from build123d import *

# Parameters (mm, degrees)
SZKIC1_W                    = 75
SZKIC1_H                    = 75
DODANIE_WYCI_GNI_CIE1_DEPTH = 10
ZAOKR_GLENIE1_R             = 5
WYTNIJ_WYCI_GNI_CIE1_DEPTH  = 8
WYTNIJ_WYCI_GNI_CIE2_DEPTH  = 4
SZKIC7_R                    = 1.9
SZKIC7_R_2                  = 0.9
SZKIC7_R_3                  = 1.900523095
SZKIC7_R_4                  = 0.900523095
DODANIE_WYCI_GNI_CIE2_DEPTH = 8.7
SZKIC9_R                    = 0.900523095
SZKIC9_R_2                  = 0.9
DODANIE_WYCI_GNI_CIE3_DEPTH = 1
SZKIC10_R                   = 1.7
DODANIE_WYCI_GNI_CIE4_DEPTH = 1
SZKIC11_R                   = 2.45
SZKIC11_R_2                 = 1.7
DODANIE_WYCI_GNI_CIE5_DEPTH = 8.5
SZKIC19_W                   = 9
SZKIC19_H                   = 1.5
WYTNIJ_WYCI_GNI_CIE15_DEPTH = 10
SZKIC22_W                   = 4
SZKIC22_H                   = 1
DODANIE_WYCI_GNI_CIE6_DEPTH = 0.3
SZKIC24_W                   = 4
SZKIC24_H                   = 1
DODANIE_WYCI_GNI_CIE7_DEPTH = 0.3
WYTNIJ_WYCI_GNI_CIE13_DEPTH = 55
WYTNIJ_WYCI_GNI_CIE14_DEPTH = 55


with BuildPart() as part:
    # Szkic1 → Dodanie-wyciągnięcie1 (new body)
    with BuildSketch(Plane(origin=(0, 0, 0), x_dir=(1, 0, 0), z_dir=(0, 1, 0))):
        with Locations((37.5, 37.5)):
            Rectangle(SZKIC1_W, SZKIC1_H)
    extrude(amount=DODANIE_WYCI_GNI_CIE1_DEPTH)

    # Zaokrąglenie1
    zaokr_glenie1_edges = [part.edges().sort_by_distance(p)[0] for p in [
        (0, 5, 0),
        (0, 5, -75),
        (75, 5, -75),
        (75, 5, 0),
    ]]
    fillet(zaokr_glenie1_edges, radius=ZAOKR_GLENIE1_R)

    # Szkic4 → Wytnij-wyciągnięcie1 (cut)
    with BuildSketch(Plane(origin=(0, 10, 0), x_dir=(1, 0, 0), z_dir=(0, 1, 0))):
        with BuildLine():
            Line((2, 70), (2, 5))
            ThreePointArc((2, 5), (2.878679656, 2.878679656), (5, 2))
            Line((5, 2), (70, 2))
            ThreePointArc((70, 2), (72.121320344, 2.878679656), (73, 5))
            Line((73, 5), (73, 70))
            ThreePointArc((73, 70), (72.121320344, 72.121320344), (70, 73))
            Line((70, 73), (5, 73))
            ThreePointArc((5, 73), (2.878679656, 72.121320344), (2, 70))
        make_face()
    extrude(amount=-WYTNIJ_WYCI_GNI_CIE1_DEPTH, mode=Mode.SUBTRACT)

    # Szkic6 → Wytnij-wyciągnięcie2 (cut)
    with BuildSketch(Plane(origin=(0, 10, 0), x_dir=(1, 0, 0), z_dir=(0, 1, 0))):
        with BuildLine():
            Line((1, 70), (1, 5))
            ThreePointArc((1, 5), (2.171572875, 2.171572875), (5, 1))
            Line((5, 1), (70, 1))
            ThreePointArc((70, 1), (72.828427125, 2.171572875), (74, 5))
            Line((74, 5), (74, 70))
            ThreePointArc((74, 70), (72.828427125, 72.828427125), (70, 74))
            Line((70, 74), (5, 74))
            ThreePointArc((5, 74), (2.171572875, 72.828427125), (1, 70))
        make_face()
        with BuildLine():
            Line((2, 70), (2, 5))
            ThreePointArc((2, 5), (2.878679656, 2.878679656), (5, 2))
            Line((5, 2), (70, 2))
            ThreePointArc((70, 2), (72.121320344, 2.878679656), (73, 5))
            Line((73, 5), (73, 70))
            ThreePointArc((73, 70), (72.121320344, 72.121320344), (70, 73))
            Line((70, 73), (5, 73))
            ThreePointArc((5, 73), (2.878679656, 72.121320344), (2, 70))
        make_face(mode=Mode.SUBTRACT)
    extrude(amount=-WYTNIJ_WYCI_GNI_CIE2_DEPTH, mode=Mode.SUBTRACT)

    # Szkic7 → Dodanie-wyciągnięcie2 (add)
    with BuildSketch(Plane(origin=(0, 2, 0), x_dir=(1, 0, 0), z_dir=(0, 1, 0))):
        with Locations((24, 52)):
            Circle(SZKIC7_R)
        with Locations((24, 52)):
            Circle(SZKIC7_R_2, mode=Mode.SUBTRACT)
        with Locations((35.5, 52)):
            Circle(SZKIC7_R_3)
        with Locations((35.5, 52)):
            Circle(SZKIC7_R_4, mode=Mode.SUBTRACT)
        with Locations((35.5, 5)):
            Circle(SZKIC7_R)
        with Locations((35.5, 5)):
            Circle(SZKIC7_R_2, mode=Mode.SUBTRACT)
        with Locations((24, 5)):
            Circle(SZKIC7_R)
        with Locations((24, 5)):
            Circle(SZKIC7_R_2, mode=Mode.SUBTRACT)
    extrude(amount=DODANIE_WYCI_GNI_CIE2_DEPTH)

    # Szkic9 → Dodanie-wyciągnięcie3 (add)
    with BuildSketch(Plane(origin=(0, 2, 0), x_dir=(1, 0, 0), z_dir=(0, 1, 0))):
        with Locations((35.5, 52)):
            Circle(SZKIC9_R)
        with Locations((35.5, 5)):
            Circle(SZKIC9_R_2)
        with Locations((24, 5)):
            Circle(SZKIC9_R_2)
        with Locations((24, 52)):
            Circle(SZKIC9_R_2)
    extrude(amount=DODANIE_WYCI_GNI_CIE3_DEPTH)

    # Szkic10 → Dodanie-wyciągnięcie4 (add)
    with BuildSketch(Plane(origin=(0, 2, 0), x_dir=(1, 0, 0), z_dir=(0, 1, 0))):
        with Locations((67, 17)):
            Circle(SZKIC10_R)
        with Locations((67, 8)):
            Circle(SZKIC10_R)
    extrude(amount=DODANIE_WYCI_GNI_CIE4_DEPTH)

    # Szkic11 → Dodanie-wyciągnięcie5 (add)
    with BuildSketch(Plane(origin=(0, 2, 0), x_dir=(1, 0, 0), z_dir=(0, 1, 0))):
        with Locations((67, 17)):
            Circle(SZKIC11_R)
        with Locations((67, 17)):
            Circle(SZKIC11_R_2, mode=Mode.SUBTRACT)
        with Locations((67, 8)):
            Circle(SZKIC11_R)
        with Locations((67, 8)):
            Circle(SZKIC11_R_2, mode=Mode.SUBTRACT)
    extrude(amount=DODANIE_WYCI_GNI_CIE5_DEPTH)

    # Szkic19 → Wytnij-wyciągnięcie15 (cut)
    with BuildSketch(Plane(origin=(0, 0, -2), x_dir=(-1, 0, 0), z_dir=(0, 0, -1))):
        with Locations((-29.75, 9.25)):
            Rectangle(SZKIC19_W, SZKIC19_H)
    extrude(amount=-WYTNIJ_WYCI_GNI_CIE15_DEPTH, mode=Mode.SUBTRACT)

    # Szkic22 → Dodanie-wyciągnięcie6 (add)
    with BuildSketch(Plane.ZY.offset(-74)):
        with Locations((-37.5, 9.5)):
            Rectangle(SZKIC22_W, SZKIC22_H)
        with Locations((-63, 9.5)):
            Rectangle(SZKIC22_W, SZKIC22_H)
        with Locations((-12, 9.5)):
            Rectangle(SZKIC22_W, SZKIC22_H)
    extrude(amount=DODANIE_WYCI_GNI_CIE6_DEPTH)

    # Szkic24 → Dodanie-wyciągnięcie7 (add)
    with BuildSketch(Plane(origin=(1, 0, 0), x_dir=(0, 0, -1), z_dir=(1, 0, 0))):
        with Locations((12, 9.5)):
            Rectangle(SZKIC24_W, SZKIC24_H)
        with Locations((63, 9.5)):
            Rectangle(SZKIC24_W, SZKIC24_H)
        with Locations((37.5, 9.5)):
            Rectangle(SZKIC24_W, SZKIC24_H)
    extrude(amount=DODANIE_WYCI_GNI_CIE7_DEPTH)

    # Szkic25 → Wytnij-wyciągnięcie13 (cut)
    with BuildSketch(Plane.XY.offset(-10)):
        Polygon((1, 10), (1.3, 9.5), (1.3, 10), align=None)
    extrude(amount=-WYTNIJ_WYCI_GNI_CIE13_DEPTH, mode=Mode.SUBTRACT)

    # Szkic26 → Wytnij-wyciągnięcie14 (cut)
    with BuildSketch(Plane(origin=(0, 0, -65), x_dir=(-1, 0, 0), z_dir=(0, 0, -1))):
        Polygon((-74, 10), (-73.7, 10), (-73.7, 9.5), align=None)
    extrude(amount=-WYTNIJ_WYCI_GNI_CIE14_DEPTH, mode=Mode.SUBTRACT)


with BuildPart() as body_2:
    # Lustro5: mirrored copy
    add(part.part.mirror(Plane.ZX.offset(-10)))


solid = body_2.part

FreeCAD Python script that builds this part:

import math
import FreeCAD as App
import Part
import Sketcher

V = App.Vector
Q = App.Units.Quantity


def edges_at(feature, points):
    """Names of the edges that pass closest to the given points."""
    edges = feature.Shape.Edges
    near = lambda p: min(range(len(edges)), key=lambda i: edges[i].distToShape(Part.Vertex(*p))[0])
    return sorted({f"Edge{near(p) + 1}" for p in points})

doc = App.newDocument("Part")
body = doc.addObject("PartDesign::Body", "Body")

# Sketch on XZ plane
sketch1 = body.newObject("Sketcher::SketchObject", "Sketch")
sketch1.AttachmentSupport = (doc.getObject("XZ_Plane"), [""])
sketch1.MapMode = "FlatFace"
sketch1.addGeometry([
    Part.LineSegment(V(0, -75, 0), V(0, 0, 0)),
    Part.LineSegment(V(0, 0, 0), V(75, 0, 0)),
    Part.LineSegment(V(75, 0, 0), V(75, -75, 0)),
    Part.LineSegment(V(75, -75, 0), V(0, -75, 0)),
], False)
sketch1.addConstraint([
    Sketcher.Constraint("Coincident", 0, 2, 1, 1),
    Sketcher.Constraint("Coincident", 1, 2, 2, 1),
    Sketcher.Constraint("Coincident", 2, 2, 3, 1),
    Sketcher.Constraint("Coincident", 3, 2, 0, 1),
    Sketcher.Constraint("Vertical", 0),
    Sketcher.Constraint("Horizontal", 1),
    Sketcher.Constraint("Vertical", 2),
    Sketcher.Constraint("Horizontal", 3),
    Sketcher.Constraint("Coincident", 0, 2, -1, 1),
    Sketcher.Constraint("Equal", 3, 0),
    Sketcher.Constraint("DistanceX", 1, 1, 1, 2, Q("75 mm")),
])
pad1 = body.newObject("PartDesign::Pad", "Pad")
pad1.Profile = sketch1
pad1.Length = 10
pad1.Reversed = True
doc.recompute()

fillet = body.newObject("PartDesign::Fillet", "Fillet")
fillet.Base = (pad1, edges_at(pad1, [
    (0, 5, 0),
    (0, 5, -75),
    (75, 5, -75),
    (75, 5, 0),
]))
fillet.Radius = 5

# Sketch on XZ plane
sketch2 = body.newObject("Sketcher::SketchObject", "Sketch001")
sketch2.AttachmentSupport = (doc.getObject("XZ_Plane"), [""])
sketch2.MapMode = "FlatFace"
sketch2.AttachmentOffset = App.Placement(V(0, 0, -10), App.Rotation())
sketch2.addGeometry([
    Part.LineSegment(V(2, -70, 0), V(2, -5, 0)),  # 0
    Part.ArcOfCircle(Part.Circle(V(5, -5, 0), V(0, 0, 1), 3), math.radians(90), math.radians(180)),  # 1
    Part.LineSegment(V(5, -2, 0), V(70, -2, 0)),  # 2
    Part.ArcOfCircle(Part.Circle(V(70, -5, 0), V(0, 0, 1), 3), math.radians(0), math.radians(90)),  # 3
    Part.LineSegment(V(73, -5, 0), V(73, -70, 0)),  # 4
    Part.ArcOfCircle(Part.Circle(V(70, -70, 0), V(0, 0, 1), 3), math.radians(-90), math.radians(0)),  # 5
    Part.LineSegment(V(70, -73, 0), V(5, -73, 0)),  # 6
    Part.ArcOfCircle(Part.Circle(V(5, -70, 0), V(0, 0, 1), 3), math.radians(180), math.radians(270)),  # 7
], False)
sketch2.addConstraint([
    Sketcher.Constraint("Tangent", 0, 2, 1, 2),
    Sketcher.Constraint("Tangent", 1, 1, 2, 1),
    Sketcher.Constraint("Tangent", 2, 2, 3, 2),
    Sketcher.Constraint("Tangent", 3, 1, 4, 1),
    Sketcher.Constraint("Tangent", 4, 2, 5, 2),
    Sketcher.Constraint("Tangent", 5, 1, 6, 1),
    Sketcher.Constraint("Tangent", 6, 2, 7, 2),
    Sketcher.Constraint("Tangent", 7, 1, 0, 1),
    Sketcher.Constraint("Vertical", 0),
    Sketcher.Constraint("Horizontal", 2),
    Sketcher.Constraint("Vertical", 4),
    Sketcher.Constraint("Horizontal", 6),
    Sketcher.Constraint("Equal", 1, 3),
    Sketcher.Constraint("Equal", 3, 5),
    Sketcher.Constraint("Equal", 5, 7),
    Sketcher.Constraint("Equal", 6, 0),
    Sketcher.Constraint("Radius", 1, Q("3 mm")),
    Sketcher.Constraint("DistanceX", 2, 1, 2, 2, Q("65 mm")),
    Sketcher.Constraint("DistanceX", -1, 1, 1, 3, Q("5 mm")),
    Sketcher.Constraint("DistanceY", 1, 3, -1, 1, Q("5 mm")),
])
pocket1 = body.newObject("PartDesign::Pocket", "Pocket")
pocket1.Profile = sketch2
pocket1.Length = 8
pocket1.Reversed = True

# Sketch on XZ plane
sketch3 = body.newObject("Sketcher::SketchObject", "Sketch002")
sketch3.AttachmentSupport = (doc.getObject("XZ_Plane"), [""])
sketch3.MapMode = "FlatFace"
sketch3.AttachmentOffset = App.Placement(V(0, 0, -10), App.Rotation())
sketch3.addGeometry([
    Part.LineSegment(V(1, -70, 0), V(1, -5, 0)),  # 0
    Part.ArcOfCircle(Part.Circle(V(5, -5, 0), V(0, 0, 1), 4), math.radians(90), math.radians(180)),  # 1
    Part.LineSegment(V(5, -1, 0), V(70, -1, 0)),  # 2
    Part.ArcOfCircle(Part.Circle(V(70, -5, 0), V(0, 0, 1), 4), math.radians(0), math.radians(90)),  # 3
    Part.LineSegment(V(74, -5, 0), V(74, -70, 0)),  # 4
    Part.ArcOfCircle(Part.Circle(V(70, -70, 0), V(0, 0, 1), 4), math.radians(-90), math.radians(0)),  # 5
    Part.LineSegment(V(70, -74, 0), V(5, -74, 0)),  # 6
    Part.ArcOfCircle(Part.Circle(V(5, -70, 0), V(0, 0, 1), 4), math.radians(180), math.radians(270)),  # 7
    Part.LineSegment(V(2, -5, 0), V(2, -70, 0)),  # 8
    Part.ArcOfCircle(Part.Circle(V(5, -70, 0), V(0, 0, 1), 3), math.radians(180), math.radians(270)),  # 9
    Part.LineSegment(V(5, -73, 0), V(70, -73, 0)),  # 10
    Part.ArcOfCircle(Part.Circle(V(70, -70, 0), V(0, 0, 1), 3), math.radians(-90), math.radians(0)),  # 11
    Part.LineSegment(V(73, -70, 0), V(73, -5, 0)),  # 12
    Part.ArcOfCircle(Part.Circle(V(70, -5, 0), V(0, 0, 1), 3), math.radians(0), math.radians(90)),  # 13
    Part.LineSegment(V(70, -2, 0), V(5, -2, 0)),  # 14
    Part.ArcOfCircle(Part.Circle(V(5, -5, 0), V(0, 0, 1), 3), math.radians(90), math.radians(180)),  # 15
], False)
sketch3.addConstraint([
    Sketcher.Constraint("Tangent", 0, 2, 1, 2),
    Sketcher.Constraint("Tangent", 1, 1, 2, 1),
    Sketcher.Constraint("Tangent", 2, 2, 3, 2),
    Sketcher.Constraint("Tangent", 3, 1, 4, 1),
    Sketcher.Constraint("Tangent", 4, 2, 5, 2),
    Sketcher.Constraint("Tangent", 5, 1, 6, 1),
    Sketcher.Constraint("Tangent", 6, 2, 7, 2),
    Sketcher.Constraint("Tangent", 7, 1, 0, 1),
    Sketcher.Constraint("Tangent", 8, 2, 9, 1),
    Sketcher.Constraint("Tangent", 9, 2, 10, 1),
    Sketcher.Constraint("Tangent", 10, 2, 11, 1),
    Sketcher.Constraint("Tangent", 11, 2, 12, 1),
    Sketcher.Constraint("Tangent", 12, 2, 13, 1),
    Sketcher.Constraint("Tangent", 13, 2, 14, 1),
    Sketcher.Constraint("Tangent", 14, 2, 15, 1),
    Sketcher.Constraint("Tangent", 15, 2, 8, 1),
    Sketcher.Constraint("Vertical", 0),
    Sketcher.Constraint("Horizontal", 2),
    Sketcher.Constraint("Vertical", 4),
    Sketcher.Constraint("Horizontal", 6),
    Sketcher.Constraint("Vertical", 8),
    Sketcher.Constraint("Horizontal", 10),
    Sketcher.Constraint("Vertical", 12),
    Sketcher.Constraint("Horizontal", 14),
    Sketcher.Constraint("Coincident", 9, 3, 7, 3),
    Sketcher.Constraint("Coincident", 11, 3, 5, 3),
    Sketcher.Constraint("Coincident", 13, 3, 3, 3),
    Sketcher.Constraint("Equal", 1, 3),
    Sketcher.Constraint("Equal", 3, 5),
    Sketcher.Constraint("Equal", 5, 7),
    Sketcher.Constraint("Equal", 13, 15),
    Sketcher.Constraint("Equal", 14, 0),
    Sketcher.Constraint("Radius", 1, Q("4 mm")),
    Sketcher.Constraint("Radius", 9, Q("3 mm")),
    Sketcher.Constraint("DistanceX", 2, 1, 2, 2, Q("65 mm")),
    Sketcher.Constraint("DistanceX", -1, 1, 1, 3, Q("5 mm")),
    Sketcher.Constraint("DistanceY", 1, 3, -1, 1, Q("5 mm")),
])
pocket2 = body.newObject("PartDesign::Pocket", "Pocket001")
pocket2.Profile = sketch3
pocket2.Length = 4
pocket2.Reversed = True

# Sketch on XZ plane
sketch4 = body.newObject("Sketcher::SketchObject", "Sketch003")
sketch4.AttachmentSupport = (doc.getObject("XZ_Plane"), [""])
sketch4.MapMode = "FlatFace"
sketch4.AttachmentOffset = App.Placement(V(0, 0, -2), App.Rotation())
sketch4.addGeometry([
    Part.Circle(V(24, -52, 0), V(0, 0, 1), 1.9),  # 0
    Part.Circle(V(24, -52, 0), V(0, 0, 1), 0.9),  # 1
    Part.Circle(V(35.5, -52, 0), V(0, 0, 1), 1.9),  # 2
    Part.Circle(V(35.5, -52, 0), V(0, 0, 1), 0.9),  # 3
    Part.Circle(V(35.5, -5, 0), V(0, 0, 1), 1.9),  # 4
    Part.Circle(V(35.5, -5, 0), V(0, 0, 1), 0.9),  # 5
    Part.Circle(V(24, -5, 0), V(0, 0, 1), 1.9),  # 6
    Part.Circle(V(24, -5, 0), V(0, 0, 1), 0.9),  # 7
], False)
sketch4.addConstraint([
    Sketcher.Constraint("Coincident", 1, 3, 0, 3),
    Sketcher.Constraint("Coincident", 3, 3, 2, 3),
    Sketcher.Constraint("Coincident", 5, 3, 4, 3),
    Sketcher.Constraint("Coincident", 7, 3, 6, 3),
    Sketcher.Constraint("Equal", 0, 4),
    Sketcher.Constraint("Equal", 1, 5),
    Sketcher.Constraint("Equal", 4, 6),
    Sketcher.Constraint("Equal", 5, 7),
    Sketcher.Constraint("Horizontal", 1, 3, 2, 3),
    Sketcher.Constraint("Horizontal", 5, 3, 6, 3),
    Sketcher.Constraint("Vertical", 3, 3, 4, 3),
    Sketcher.Constraint("Vertical", 1, 3, 6, 3),
    Sketcher.Constraint("Diameter", 0, Q("3.8 mm")),
    Sketcher.Constraint("Diameter", 1, Q("1.8 mm")),
    Sketcher.Constraint("DistanceX", -1, 1, 0, 3, Q("24 mm")),
    Sketcher.Constraint("DistanceY", 0, 3, -1, 1, Q("52 mm")),
    Sketcher.Constraint("DistanceY", 4, 3, -1, 1, Q("5 mm")),
    Sketcher.Constraint("DistanceX", -1, 1, 2, 3, Q("35.5 mm")),
    Sketcher.Constraint("Diameter", 2, Q("3.801046 mm")),
    Sketcher.Constraint("Diameter", 3, Q("1.801046 mm")),
])
pad2 = body.newObject("PartDesign::Pad", "Pad001")
pad2.Profile = sketch4
pad2.Length = 8.7
pad2.Reversed = True

# Sketch on XZ plane
sketch5 = body.newObject("Sketcher::SketchObject", "Sketch004")
sketch5.AttachmentSupport = (doc.getObject("XZ_Plane"), [""])
sketch5.MapMode = "FlatFace"
sketch5.AttachmentOffset = App.Placement(V(0, 0, -2), App.Rotation())
sketch5.addGeometry([
    Part.Circle(V(35.5, -52, 0), V(0, 0, 1), 0.9),
    Part.Circle(V(35.5, -5, 0), V(0, 0, 1), 0.9),
    Part.Circle(V(24, -5, 0), V(0, 0, 1), 0.9),
    Part.Circle(V(24, -52, 0), V(0, 0, 1), 0.9),
], False)
sketch5.addConstraint([
    Sketcher.Constraint("Equal", 1, 2),
    Sketcher.Constraint("Equal", 2, 3),
    Sketcher.Constraint("Horizontal", 1, 3, 2, 3),
    Sketcher.Constraint("Horizontal", 0, 3, 3, 3),
    Sketcher.Constraint("Vertical", 0, 3, 1, 3),
    Sketcher.Constraint("Vertical", 2, 3, 3, 3),
    Sketcher.Constraint("Diameter", 1, Q("1.8 mm")),
    Sketcher.Constraint("DistanceY", 0, 3, -1, 1, Q("52 mm")),
    Sketcher.Constraint("DistanceY", 1, 3, -1, 1, Q("5 mm")),
    Sketcher.Constraint("DistanceX", -1, 1, 2, 3, Q("24 mm")),
    Sketcher.Constraint("DistanceX", -1, 1, 0, 3, Q("35.5 mm")),
    Sketcher.Constraint("Diameter", 0, Q("1.801046 mm")),
])
pad3 = body.newObject("PartDesign::Pad", "Pad002")
pad3.Profile = sketch5
pad3.Length = 1
pad3.Reversed = True

# Sketch on XZ plane
sketch6 = body.newObject("Sketcher::SketchObject", "Sketch005")
sketch6.AttachmentSupport = (doc.getObject("XZ_Plane"), [""])
sketch6.MapMode = "FlatFace"
sketch6.AttachmentOffset = App.Placement(V(0, 0, -2), App.Rotation())
sketch6.addGeometry([
    Part.Circle(V(67, -17, 0), V(0, 0, 1), 1.7),
    Part.Circle(V(67, -8, 0), V(0, 0, 1), 1.7),
], False)
sketch6.addConstraint([
    Sketcher.Constraint("Equal", 0, 1),
    Sketcher.Constraint("Vertical", 0, 3, 1, 3),
    Sketcher.Constraint("Diameter", 0, Q("3.4 mm")),
    Sketcher.Constraint("DistanceX", -1, 1, 0, 3, Q("67 mm")),
    Sketcher.Constraint("DistanceY", 0, 3, -1, 1, Q("17 mm")),
    Sketcher.Constraint("DistanceY", 1, 3, -1, 1, Q("8 mm")),
])
pad4 = body.newObject("PartDesign::Pad", "Pad003")
pad4.Profile = sketch6
pad4.Length = 1
pad4.Reversed = True

# Sketch on XZ plane
sketch7 = body.newObject("Sketcher::SketchObject", "Sketch006")
sketch7.AttachmentSupport = (doc.getObject("XZ_Plane"), [""])
sketch7.MapMode = "FlatFace"
sketch7.AttachmentOffset = App.Placement(V(0, 0, -2), App.Rotation())
sketch7.addGeometry([
    Part.Circle(V(67, -17, 0), V(0, 0, 1), 2.5),
    Part.Circle(V(67, -17, 0), V(0, 0, 1), 1.7),
    Part.Circle(V(67, -8, 0), V(0, 0, 1), 2.5),
    Part.Circle(V(67, -8, 0), V(0, 0, 1), 1.7),
], False)
sketch7.addConstraint([
    Sketcher.Constraint("Coincident", 1, 3, 0, 3),
    Sketcher.Constraint("Coincident", 3, 3, 2, 3),
    Sketcher.Constraint("Equal", 0, 2),
    Sketcher.Constraint("Equal", 1, 3),
    Sketcher.Constraint("Vertical", 1, 3, 2, 3),
    Sketcher.Constraint("Diameter", 0, Q("4.9 mm")),
    Sketcher.Constraint("Diameter", 1, Q("3.4 mm")),
    Sketcher.Constraint("DistanceX", -1, 1, 0, 3, Q("67 mm")),
    Sketcher.Constraint("DistanceY", 0, 3, -1, 1, Q("17 mm")),
    Sketcher.Constraint("DistanceY", 2, 3, -1, 1, Q("8 mm")),
])
pad5 = body.newObject("PartDesign::Pad", "Pad004")
pad5.Profile = sketch7
pad5.Length = 8.5
pad5.Reversed = True

# Sketch on XY plane
sketch8 = body.newObject("Sketcher::SketchObject", "Sketch007")
sketch8.AttachmentSupport = (doc.getObject("XY_Plane"), [""])
sketch8.MapMode = "FlatFace"
sketch8.AttachmentOffset = App.Placement(V(0, 0, -2), App.Rotation())
sketch8.addGeometry([
    Part.LineSegment(V(34.2, 10, 0), V(34.2, 8.5, 0)),
    Part.LineSegment(V(34.2, 8.5, 0), V(25.2, 8.5, 0)),
    Part.LineSegment(V(25.2, 8.5, 0), V(25.2, 10, 0)),
    Part.LineSegment(V(25.2, 10, 0), V(34.2, 10, 0)),
], False)
sketch8.addConstraint([
    Sketcher.Constraint("Coincident", 0, 2, 1, 1),
    Sketcher.Constraint("Coincident", 1, 2, 2, 1),
    Sketcher.Constraint("Coincident", 2, 2, 3, 1),
    Sketcher.Constraint("Coincident", 3, 2, 0, 1),
    Sketcher.Constraint("Vertical", 0),
    Sketcher.Constraint("Horizontal", 1),
    Sketcher.Constraint("Vertical", 2),
    Sketcher.Constraint("Horizontal", 3),
    Sketcher.Constraint("DistanceX", 1, 2, 1, 1, Q("9 mm")),
    Sketcher.Constraint("DistanceY", 0, 2, 0, 1, Q("1.5 mm")),
    Sketcher.Constraint("DistanceY", -1, 1, 2, 2, Q("10 mm")),
    Sketcher.Constraint("DistanceX", -1, 1, 0, 2, Q("34.25 mm")),
])
pocket3 = body.newObject("PartDesign::Pocket", "Pocket002")
pocket3.Profile = sketch8
pocket3.Length = 10
pocket3.Reversed = True

# Sketch on YZ plane
sketch9 = body.newObject("Sketcher::SketchObject", "Sketch008")
sketch9.AttachmentSupport = (doc.getObject("YZ_Plane"), [""])
sketch9.MapMode = "FlatFace"
sketch9.AttachmentOffset = App.Placement(V(0, 0, 74), App.Rotation())
sketch9.addGeometry([
    Part.LineSegment(V(10, -39.5, 0), V(9, -39.5, 0)),  # 0
    Part.LineSegment(V(9, -39.5, 0), V(9, -35.5, 0)),  # 1
    Part.LineSegment(V(9, -35.5, 0), V(10, -35.5, 0)),  # 2
    Part.LineSegment(V(10, -35.5, 0), V(10, -39.5, 0)),  # 3
    Part.LineSegment(V(10, -65, 0), V(9, -65, 0)),  # 4
    Part.LineSegment(V(9, -65, 0), V(9, -61, 0)),  # 5
    Part.LineSegment(V(9, -61, 0), V(10, -61, 0)),  # 6
    Part.LineSegment(V(10, -61, 0), V(10, -65, 0)),  # 7
    Part.LineSegment(V(10, -14, 0), V(9, -14, 0)),  # 8
    Part.LineSegment(V(9, -14, 0), V(9, -10, 0)),  # 9
    Part.LineSegment(V(9, -10, 0), V(10, -10, 0)),  # 10
    Part.LineSegment(V(10, -10, 0), V(10, -14, 0)),  # 11
], False)
sketch9.addConstraint([
    Sketcher.Constraint("Coincident", 0, 2, 1, 1),
    Sketcher.Constraint("Coincident", 1, 2, 2, 1),
    Sketcher.Constraint("Coincident", 2, 2, 3, 1),
    Sketcher.Constraint("Coincident", 3, 2, 0, 1),
    Sketcher.Constraint("Coincident", 4, 2, 5, 1),
    Sketcher.Constraint("Coincident", 5, 2, 6, 1),
    Sketcher.Constraint("Coincident", 6, 2, 7, 1),
    Sketcher.Constraint("Coincident", 7, 2, 4, 1),
    Sketcher.Constraint("Coincident", 8, 2, 9, 1),
    Sketcher.Constraint("Coincident", 9, 2, 10, 1),
    Sketcher.Constraint("Coincident", 10, 2, 11, 1),
    Sketcher.Constraint("Coincident", 11, 2, 8, 1),
    Sketcher.Constraint("Horizontal", 0),
    Sketcher.Constraint("Vertical", 1),
    Sketcher.Constraint("Horizontal", 2),
    Sketcher.Constraint("Vertical", 3),
    Sketcher.Constraint("Horizontal", 4),
    Sketcher.Constraint("Vertical", 5),
    Sketcher.Constraint("Horizontal", 6),
    Sketcher.Constraint("Vertical", 7),
    Sketcher.Constraint("Horizontal", 8),
    Sketcher.Constraint("Vertical", 9),
    Sketcher.Constraint("Horizontal", 10),
    Sketcher.Constraint("Vertical", 11),
    Sketcher.Constraint("Vertical", 1, 2, 4, 2),
    Sketcher.Constraint("Vertical", 3, 2, 6, 2),
    Sketcher.Constraint("Vertical", 5, 2, 8, 2),
    Sketcher.Constraint("Vertical", 7, 2, 10, 2),
    Sketcher.Constraint("Equal", 3, 5),
    Sketcher.Constraint("Equal", 7, 9),
    Sketcher.Constraint("DistanceX", 0, 2, 0, 1, Q("1 mm")),
    Sketcher.Constraint("DistanceY", 1, 1, 1, 2, Q("4 mm")),
    Sketcher.Constraint("DistanceX", -1, 1, 0, 2, Q("9 mm")),
    Sketcher.Constraint("DistanceY", 4, 2, -1, 1, Q("65 mm")),
    Sketcher.Constraint("DistanceY", 8, 2, -1, 1, Q("14 mm")),
    Sketcher.Constraint("DistanceY", 0, 2, -1, 1, Q("39.5 mm")),
])
pad6 = body.newObject("PartDesign::Pad", "Pad005")
pad6.Profile = sketch9
pad6.Length = 0.3
pad6.Reversed = True

# Sketch on YZ plane
sketch10 = body.newObject("Sketcher::SketchObject", "Sketch009")
sketch10.AttachmentSupport = (doc.getObject("YZ_Plane"), [""])
sketch10.MapMode = "FlatFace"
sketch10.AttachmentOffset = App.Placement(V(0, 0, 1), App.Rotation())
sketch10.addGeometry([
    Part.LineSegment(V(10, -10, 0), V(9, -10, 0)),  # 0
    Part.LineSegment(V(9, -10, 0), V(9, -14, 0)),  # 1
    Part.LineSegment(V(9, -14, 0), V(10, -14, 0)),  # 2
    Part.LineSegment(V(10, -14, 0), V(10, -10, 0)),  # 3
    Part.LineSegment(V(10, -61, 0), V(9, -61, 0)),  # 4
    Part.LineSegment(V(9, -61, 0), V(9, -65, 0)),  # 5
    Part.LineSegment(V(9, -65, 0), V(10, -65, 0)),  # 6
    Part.LineSegment(V(10, -65, 0), V(10, -61, 0)),  # 7
    Part.LineSegment(V(10, -35.5, 0), V(9, -35.5, 0)),  # 8
    Part.LineSegment(V(9, -35.5, 0), V(9, -39.5, 0)),  # 9
    Part.LineSegment(V(9, -39.5, 0), V(10, -39.5, 0)),  # 10
    Part.LineSegment(V(10, -39.5, 0), V(10, -35.5, 0)),  # 11
], False)
sketch10.addConstraint([
    Sketcher.Constraint("Coincident", 0, 2, 1, 1),
    Sketcher.Constraint("Coincident", 1, 2, 2, 1),
    Sketcher.Constraint("Coincident", 2, 2, 3, 1),
    Sketcher.Constraint("Coincident", 3, 2, 0, 1),
    Sketcher.Constraint("Coincident", 4, 2, 5, 1),
    Sketcher.Constraint("Coincident", 5, 2, 6, 1),
    Sketcher.Constraint("Coincident", 6, 2, 7, 1),
    Sketcher.Constraint("Coincident", 7, 2, 4, 1),
    Sketcher.Constraint("Coincident", 8, 2, 9, 1),
    Sketcher.Constraint("Coincident", 9, 2, 10, 1),
    Sketcher.Constraint("Coincident", 10, 2, 11, 1),
    Sketcher.Constraint("Coincident", 11, 2, 8, 1),
    Sketcher.Constraint("Horizontal", 0),
    Sketcher.Constraint("Vertical", 1),
    Sketcher.Constraint("Horizontal", 2),
    Sketcher.Constraint("Vertical", 3),
    Sketcher.Constraint("Horizontal", 4),
    Sketcher.Constraint("Vertical", 5),
    Sketcher.Constraint("Horizontal", 6),
    Sketcher.Constraint("Vertical", 7),
    Sketcher.Constraint("Horizontal", 8),
    Sketcher.Constraint("Vertical", 9),
    Sketcher.Constraint("Horizontal", 10),
    Sketcher.Constraint("Vertical", 11),
    Sketcher.Constraint("Vertical", 1, 2, 4, 2),
    Sketcher.Constraint("Vertical", 3, 2, 6, 2),
    Sketcher.Constraint("Vertical", 5, 2, 8, 2),
    Sketcher.Constraint("Vertical", 7, 2, 10, 2),
    Sketcher.Constraint("Equal", 3, 5),
    Sketcher.Constraint("Equal", 7, 9),
    Sketcher.Constraint("DistanceX", 0, 2, 0, 1, Q("1 mm")),
    Sketcher.Constraint("DistanceY", 1, 2, 1, 1, Q("4 mm")),
    Sketcher.Constraint("DistanceX", -1, 1, 0, 2, Q("9 mm")),
    Sketcher.Constraint("DistanceY", 0, 2, -1, 1, Q("10 mm")),
    Sketcher.Constraint("DistanceY", 4, 2, -1, 1, Q("61 mm")),
    Sketcher.Constraint("DistanceY", 8, 2, -1, 1, Q("35.5 mm")),
])
pad7 = body.newObject("PartDesign::Pad", "Pad006")
pad7.Profile = sketch10
pad7.Length = 0.3

# Sketch on XY plane
sketch11 = body.newObject("Sketcher::SketchObject", "Sketch010")
sketch11.AttachmentSupport = (doc.getObject("XY_Plane"), [""])
sketch11.MapMode = "FlatFace"
sketch11.AttachmentOffset = App.Placement(V(0, 0, -10), App.Rotation())
sketch11.addGeometry([
    Part.LineSegment(V(1, 10, 0), V(1.3, 9.5, 0)),
    Part.LineSegment(V(1.3, 9.5, 0), V(1.3, 10, 0)),
    Part.LineSegment(V(1.3, 10, 0), V(1, 10, 0)),
], False)
sketch11.addConstraint([
    Sketcher.Constraint("Coincident", 0, 2, 1, 1),
    Sketcher.Constraint("Coincident", 1, 2, 2, 1),
    Sketcher.Constraint("Coincident", 2, 2, 0, 1),
    Sketcher.Constraint("Vertical", 1),
    Sketcher.Constraint("Horizontal", 2),
    Sketcher.Constraint("DistanceX", 2, 2, 2, 1, Q("0.3 mm")),
    Sketcher.Constraint("DistanceY", 1, 1, 1, 2, Q("0.5 mm")),
    Sketcher.Constraint("DistanceY", -1, 1, 1, 2, Q("10 mm")),
    Sketcher.Constraint("DistanceX", -1, 1, 2, 2, Q("1 mm")),
])
pocket4 = body.newObject("PartDesign::Pocket", "Pocket003")
pocket4.Profile = sketch11
pocket4.Length = 55

# Sketch on XY plane
sketch12 = body.newObject("Sketcher::SketchObject", "Sketch011")
sketch12.AttachmentSupport = (doc.getObject("XY_Plane"), [""])
sketch12.MapMode = "FlatFace"
sketch12.AttachmentOffset = App.Placement(V(0, 0, -65), App.Rotation())
sketch12.addGeometry([
    Part.LineSegment(V(73.7, 10, 0), V(74, 10, 0)),
    Part.LineSegment(V(74, 10, 0), V(73.7, 9.5, 0)),
    Part.LineSegment(V(73.7, 9.5, 0), V(73.7, 10, 0)),
], False)
sketch12.addConstraint([
    Sketcher.Constraint("Coincident", 0, 2, 1, 1),
    Sketcher.Constraint("Coincident", 1, 2, 2, 1),
    Sketcher.Constraint("Coincident", 2, 2, 0, 1),
    Sketcher.Constraint("Horizontal", 0),
    Sketcher.Constraint("Vertical", 2),
    Sketcher.Constraint("DistanceX", 0, 1, 0, 2, Q("0.3 mm")),
    Sketcher.Constraint("DistanceY", 2, 1, 2, 2, Q("0.5 mm")),
    Sketcher.Constraint("DistanceX", -1, 1, 0, 2, Q("74 mm")),
    Sketcher.Constraint("DistanceY", -1, 1, 0, 2, Q("10 mm")),
])
pocket5 = body.newObject("PartDesign::Pocket", "Pocket004")
pocket5.Profile = sketch12
pocket5.Length = 55
pocket5.Reversed = True
body2 = doc.addObject("PartDesign::Body", "Body001")
doc.recompute()

mirroring = doc.addObject("Part::Mirroring", "Mirroring")
mirroring.Source = body
mirroring.Base = V(0, -10, 0)
mirroring.Normal = V(0, 1, 0)
body2.BaseFeature = mirroring
doc.recompute()
body.Visibility = False
mirroring.Visibility = False

doc.recompute()
